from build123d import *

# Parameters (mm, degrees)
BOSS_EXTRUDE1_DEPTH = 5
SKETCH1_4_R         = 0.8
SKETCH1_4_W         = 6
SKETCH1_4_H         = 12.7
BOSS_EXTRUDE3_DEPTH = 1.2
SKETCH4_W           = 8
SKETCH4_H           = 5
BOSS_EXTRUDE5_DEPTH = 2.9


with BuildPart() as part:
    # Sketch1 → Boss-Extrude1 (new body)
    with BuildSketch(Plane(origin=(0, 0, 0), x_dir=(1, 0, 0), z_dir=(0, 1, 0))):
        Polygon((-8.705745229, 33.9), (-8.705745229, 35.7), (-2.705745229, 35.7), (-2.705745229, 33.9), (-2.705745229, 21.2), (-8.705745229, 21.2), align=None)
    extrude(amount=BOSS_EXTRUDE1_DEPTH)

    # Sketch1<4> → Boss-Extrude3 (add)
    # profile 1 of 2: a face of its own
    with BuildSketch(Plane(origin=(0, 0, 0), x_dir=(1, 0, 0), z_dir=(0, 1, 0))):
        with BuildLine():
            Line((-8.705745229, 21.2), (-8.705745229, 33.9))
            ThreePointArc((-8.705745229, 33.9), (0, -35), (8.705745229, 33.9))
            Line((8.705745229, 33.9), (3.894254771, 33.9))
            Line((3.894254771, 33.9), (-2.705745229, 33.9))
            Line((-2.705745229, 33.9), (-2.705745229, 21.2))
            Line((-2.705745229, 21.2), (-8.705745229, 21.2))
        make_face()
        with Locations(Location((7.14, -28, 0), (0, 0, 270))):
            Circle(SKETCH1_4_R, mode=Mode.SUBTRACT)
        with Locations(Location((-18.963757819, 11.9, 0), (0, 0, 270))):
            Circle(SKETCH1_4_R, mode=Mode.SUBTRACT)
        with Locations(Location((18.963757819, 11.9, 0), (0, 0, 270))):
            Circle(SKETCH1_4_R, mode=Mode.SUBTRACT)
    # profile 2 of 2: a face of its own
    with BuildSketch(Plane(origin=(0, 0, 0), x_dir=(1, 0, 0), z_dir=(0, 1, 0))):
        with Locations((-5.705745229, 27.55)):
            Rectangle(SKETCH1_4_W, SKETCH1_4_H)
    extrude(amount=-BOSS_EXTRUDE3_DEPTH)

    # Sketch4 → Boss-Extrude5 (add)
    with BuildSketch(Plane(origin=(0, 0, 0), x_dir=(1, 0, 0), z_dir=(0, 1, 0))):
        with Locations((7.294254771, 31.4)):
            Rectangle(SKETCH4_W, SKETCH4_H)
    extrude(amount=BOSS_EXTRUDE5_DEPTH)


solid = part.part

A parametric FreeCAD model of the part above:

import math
import FreeCAD as App
import Part
import Sketcher
Q = App.Units.Quantity

doc = App.newDocument("Part")
params = doc.addObject("Spreadsheet::Sheet", "Params")
for row, (alias, value) in enumerate([
    ("sketch1_width", "6 mm"),
    ("sketch1_height", "14.5 mm"),
    ("pad1_length", "5 mm"),
    ("sketch2_radius", "35 mm"),
    ("sketch2_diameter", "1.6 mm"),
    ("pad2_length", "1.2 mm"),
    ("sketch3_width", "8 mm"),
    ("sketch3_height", "5 mm"),
    ("pad3_length", "2.9 mm"),
], start=1):
    params.set(f"A{row}", alias)
    params.set(f"B{row}", "=" + value)
    params.setAlias(f"B{row}", alias)

body = doc.addObject("PartDesign::Body", "Body")

# Sketch on XZ plane
sketch1 = body.newObject("Sketcher::SketchObject", "Sketch")
sketch1.AttachmentSupport = (doc.getObject("XZ_Plane"), [""])
sketch1.MapMode = "FlatFace"
sketch1.addGeometry([
    Part.LineSegment(App.Vector(-9, -36, 0), App.Vector(-9, -21, 0)),
    Part.LineSegment(App.Vector(-9, -21, 0), App.Vector(-3, -21, 0)),
    Part.LineSegment(App.Vector(-3, -21, 0), App.Vector(-3, -36, 0)),
    Part.LineSegment(App.Vector(-3, -36, 0), App.Vector(-9, -36, 0)),
], False)
sketch1.addConstraint([
    Sketcher.Constraint("Coincident", 0, 2, 1, 1),
    Sketcher.Constraint("Coincident", 1, 2, 2, 1),
    Sketcher.Constraint("Coincident", 2, 2, 3, 1),
    Sketcher.Constraint("Coincident", 3, 2, 0, 1),
    Sketcher.Constraint("Vertical", 0),
    Sketcher.Constraint("Horizontal", 1),
    Sketcher.Constraint("Vertical", 2),
    Sketcher.Constraint("Horizontal", 3),
    Sketcher.Constraint("DistanceX", 1, 1, 1, 2, Q("6 mm")),
    Sketcher.Constraint("DistanceY", 0, 1, 0, 2, Q("14.5 mm")),
    Sketcher.Constraint("DistanceY", 0, 2, -1, 1, Q("21.2 mm")),
    Sketcher.Constraint("DistanceX", 0, 2, -1, 1, Q("8.705745 mm")),
])
sketch1.setExpression("Constraints[8]", "Params.sketch1_width")
sketch1.setExpression("Constraints[9]", "Params.sketch1_height")
pad1 = body.newObject("PartDesign::Pad", "Pad")
pad1.Profile = sketch1
pad1.setExpression("Length", "Params.pad1_length")
pad1.Reversed = True

# Sketch on XZ plane
sketch2 = body.newObject("Sketcher::SketchObject", "Sketch001")
sketch2.AttachmentSupport = (doc.getObject("XZ_Plane"), [""])
sketch2.MapMode = "FlatFace"
sketch2.addGeometry([
    Part.ArcOfCircle(Part.Circle(App.Vector(0, 0, 0), App.Vector(0, 0, 1), 35), math.radians(-76), math.radians(256)),  # 0
    Part.LineSegment(App.Vector(8.7, -33.9, 0), App.Vector(-8.7, -33.9, 0)),  # 1
    Part.Circle(App.Vector(7.1, 28, 0), App.Vector(0, 0, 1), 0.8),  # 2
    Part.Circle(App.Vector(-19, -11.9, 0), App.Vector(0, 0, 1), 0.8),  # 3
    Part.Circle(App.Vector(19, -11.9, 0), App.Vector(0, 0, 1), 0.8),  # 4
], False)
sketch2.addConstraint([
    Sketcher.Constraint("Coincident", 0, 1, 1, 1),
    Sketcher.Constraint("Coincident", 1, 2, 0, 2),
    Sketcher.Constraint("Horizontal", 1),
    Sketcher.Constraint("Coincident", 0, 3, -1, 1),
    Sketcher.Constraint("Equal", 2, 3),
    Sketcher.Constraint("Equal", 3, 4),
    Sketcher.Constraint("Symmetric", 3, 3, 4, 3, -2),
    Sketcher.Constraint("Radius", 0, Q("35 mm")),
    Sketcher.Constraint("Diameter", 2, Q("1.6 mm")),
    Sketcher.Constraint("DistanceY", -1, 1, 2, 3, Q("28 mm")),
    Sketcher.Constraint("DistanceY", 0, 1, 4, 3, Q("22 mm")),
    Sketcher.Constraint("DistanceY", 3, 3, -1, 1, Q("11.9 mm")),
    Sketcher.Constraint("DistanceX", -1, 1, 2, 3, Q("7.14 mm")),
    Sketcher.Constraint("DistanceX", 3, 3, -1, 1, Q("18.963758 mm")),
])
sketch2.setExpression("Constraints[7]", "Params.sketch2_radius")
sketch2.setExpression("Constraints[8]", "Params.sketch2_diameter")
pad2 = body.newObject("PartDesign::Pad", "Pad001")
pad2.Profile = sketch2
pad2.setExpression("Length", "Params.pad2_length")

# Sketch on XZ plane
sketch3 = body.newObject("Sketcher::SketchObject", "Sketch002")
sketch3.AttachmentSupport = (doc.getObject("XZ_Plane"), [""])
sketch3.MapMode = "FlatFace"
sketch3.addGeometry([
    Part.LineSegment(App.Vector(3, -34, 0), App.Vector(3, -29, 0)),
    Part.LineSegment(App.Vector(3, -29, 0), App.Vector(11, -29, 0)),
    Part.LineSegment(App.Vector(11, -29, 0), App.Vector(11, -34, 0)),
    Part.LineSegment(App.Vector(11, -34, 0), App.Vector(3, -34, 0)),
], False)
sketch3.addConstraint([
    Sketcher.Constraint("Coincident", 0, 2, 1, 1),
    Sketcher.Constraint("Coincident", 1, 2, 2, 1),
    Sketcher.Constraint("Coincident", 2, 2, 3, 1),
    Sketcher.Constraint("Coincident", 3, 2, 0, 1),
    Sketcher.Constraint("Vertical", 0),
    Sketcher.Constraint("Horizontal", 1),
    Sketcher.Constraint("Vertical", 2),
    Sketcher.Constraint("Horizontal", 3),
    Sketcher.Constraint("DistanceX", 1, 1, 1, 2, Q("8 mm")),
    Sketcher.Constraint("DistanceY", 0, 1, 0, 2, Q("5 mm")),
    Sketcher.Constraint("DistanceY", 0, 2, -1, 1, Q("28.9 mm")),
    Sketcher.Constraint("DistanceX", -1, 1, 0, 2, Q("3.294255 mm")),
])
sketch3.setExpression("Constraints[8]", "Params.sketch3_width")
sketch3.setExpression("Constraints[9]", "Params.sketch3_height")
pad3 = body.newObject("PartDesign::Pad", "Pad002")
pad3.Profile = sketch3
pad3.setExpression("Length", "Params.pad3_length")
pad3.Reversed = True

doc.recompute()
